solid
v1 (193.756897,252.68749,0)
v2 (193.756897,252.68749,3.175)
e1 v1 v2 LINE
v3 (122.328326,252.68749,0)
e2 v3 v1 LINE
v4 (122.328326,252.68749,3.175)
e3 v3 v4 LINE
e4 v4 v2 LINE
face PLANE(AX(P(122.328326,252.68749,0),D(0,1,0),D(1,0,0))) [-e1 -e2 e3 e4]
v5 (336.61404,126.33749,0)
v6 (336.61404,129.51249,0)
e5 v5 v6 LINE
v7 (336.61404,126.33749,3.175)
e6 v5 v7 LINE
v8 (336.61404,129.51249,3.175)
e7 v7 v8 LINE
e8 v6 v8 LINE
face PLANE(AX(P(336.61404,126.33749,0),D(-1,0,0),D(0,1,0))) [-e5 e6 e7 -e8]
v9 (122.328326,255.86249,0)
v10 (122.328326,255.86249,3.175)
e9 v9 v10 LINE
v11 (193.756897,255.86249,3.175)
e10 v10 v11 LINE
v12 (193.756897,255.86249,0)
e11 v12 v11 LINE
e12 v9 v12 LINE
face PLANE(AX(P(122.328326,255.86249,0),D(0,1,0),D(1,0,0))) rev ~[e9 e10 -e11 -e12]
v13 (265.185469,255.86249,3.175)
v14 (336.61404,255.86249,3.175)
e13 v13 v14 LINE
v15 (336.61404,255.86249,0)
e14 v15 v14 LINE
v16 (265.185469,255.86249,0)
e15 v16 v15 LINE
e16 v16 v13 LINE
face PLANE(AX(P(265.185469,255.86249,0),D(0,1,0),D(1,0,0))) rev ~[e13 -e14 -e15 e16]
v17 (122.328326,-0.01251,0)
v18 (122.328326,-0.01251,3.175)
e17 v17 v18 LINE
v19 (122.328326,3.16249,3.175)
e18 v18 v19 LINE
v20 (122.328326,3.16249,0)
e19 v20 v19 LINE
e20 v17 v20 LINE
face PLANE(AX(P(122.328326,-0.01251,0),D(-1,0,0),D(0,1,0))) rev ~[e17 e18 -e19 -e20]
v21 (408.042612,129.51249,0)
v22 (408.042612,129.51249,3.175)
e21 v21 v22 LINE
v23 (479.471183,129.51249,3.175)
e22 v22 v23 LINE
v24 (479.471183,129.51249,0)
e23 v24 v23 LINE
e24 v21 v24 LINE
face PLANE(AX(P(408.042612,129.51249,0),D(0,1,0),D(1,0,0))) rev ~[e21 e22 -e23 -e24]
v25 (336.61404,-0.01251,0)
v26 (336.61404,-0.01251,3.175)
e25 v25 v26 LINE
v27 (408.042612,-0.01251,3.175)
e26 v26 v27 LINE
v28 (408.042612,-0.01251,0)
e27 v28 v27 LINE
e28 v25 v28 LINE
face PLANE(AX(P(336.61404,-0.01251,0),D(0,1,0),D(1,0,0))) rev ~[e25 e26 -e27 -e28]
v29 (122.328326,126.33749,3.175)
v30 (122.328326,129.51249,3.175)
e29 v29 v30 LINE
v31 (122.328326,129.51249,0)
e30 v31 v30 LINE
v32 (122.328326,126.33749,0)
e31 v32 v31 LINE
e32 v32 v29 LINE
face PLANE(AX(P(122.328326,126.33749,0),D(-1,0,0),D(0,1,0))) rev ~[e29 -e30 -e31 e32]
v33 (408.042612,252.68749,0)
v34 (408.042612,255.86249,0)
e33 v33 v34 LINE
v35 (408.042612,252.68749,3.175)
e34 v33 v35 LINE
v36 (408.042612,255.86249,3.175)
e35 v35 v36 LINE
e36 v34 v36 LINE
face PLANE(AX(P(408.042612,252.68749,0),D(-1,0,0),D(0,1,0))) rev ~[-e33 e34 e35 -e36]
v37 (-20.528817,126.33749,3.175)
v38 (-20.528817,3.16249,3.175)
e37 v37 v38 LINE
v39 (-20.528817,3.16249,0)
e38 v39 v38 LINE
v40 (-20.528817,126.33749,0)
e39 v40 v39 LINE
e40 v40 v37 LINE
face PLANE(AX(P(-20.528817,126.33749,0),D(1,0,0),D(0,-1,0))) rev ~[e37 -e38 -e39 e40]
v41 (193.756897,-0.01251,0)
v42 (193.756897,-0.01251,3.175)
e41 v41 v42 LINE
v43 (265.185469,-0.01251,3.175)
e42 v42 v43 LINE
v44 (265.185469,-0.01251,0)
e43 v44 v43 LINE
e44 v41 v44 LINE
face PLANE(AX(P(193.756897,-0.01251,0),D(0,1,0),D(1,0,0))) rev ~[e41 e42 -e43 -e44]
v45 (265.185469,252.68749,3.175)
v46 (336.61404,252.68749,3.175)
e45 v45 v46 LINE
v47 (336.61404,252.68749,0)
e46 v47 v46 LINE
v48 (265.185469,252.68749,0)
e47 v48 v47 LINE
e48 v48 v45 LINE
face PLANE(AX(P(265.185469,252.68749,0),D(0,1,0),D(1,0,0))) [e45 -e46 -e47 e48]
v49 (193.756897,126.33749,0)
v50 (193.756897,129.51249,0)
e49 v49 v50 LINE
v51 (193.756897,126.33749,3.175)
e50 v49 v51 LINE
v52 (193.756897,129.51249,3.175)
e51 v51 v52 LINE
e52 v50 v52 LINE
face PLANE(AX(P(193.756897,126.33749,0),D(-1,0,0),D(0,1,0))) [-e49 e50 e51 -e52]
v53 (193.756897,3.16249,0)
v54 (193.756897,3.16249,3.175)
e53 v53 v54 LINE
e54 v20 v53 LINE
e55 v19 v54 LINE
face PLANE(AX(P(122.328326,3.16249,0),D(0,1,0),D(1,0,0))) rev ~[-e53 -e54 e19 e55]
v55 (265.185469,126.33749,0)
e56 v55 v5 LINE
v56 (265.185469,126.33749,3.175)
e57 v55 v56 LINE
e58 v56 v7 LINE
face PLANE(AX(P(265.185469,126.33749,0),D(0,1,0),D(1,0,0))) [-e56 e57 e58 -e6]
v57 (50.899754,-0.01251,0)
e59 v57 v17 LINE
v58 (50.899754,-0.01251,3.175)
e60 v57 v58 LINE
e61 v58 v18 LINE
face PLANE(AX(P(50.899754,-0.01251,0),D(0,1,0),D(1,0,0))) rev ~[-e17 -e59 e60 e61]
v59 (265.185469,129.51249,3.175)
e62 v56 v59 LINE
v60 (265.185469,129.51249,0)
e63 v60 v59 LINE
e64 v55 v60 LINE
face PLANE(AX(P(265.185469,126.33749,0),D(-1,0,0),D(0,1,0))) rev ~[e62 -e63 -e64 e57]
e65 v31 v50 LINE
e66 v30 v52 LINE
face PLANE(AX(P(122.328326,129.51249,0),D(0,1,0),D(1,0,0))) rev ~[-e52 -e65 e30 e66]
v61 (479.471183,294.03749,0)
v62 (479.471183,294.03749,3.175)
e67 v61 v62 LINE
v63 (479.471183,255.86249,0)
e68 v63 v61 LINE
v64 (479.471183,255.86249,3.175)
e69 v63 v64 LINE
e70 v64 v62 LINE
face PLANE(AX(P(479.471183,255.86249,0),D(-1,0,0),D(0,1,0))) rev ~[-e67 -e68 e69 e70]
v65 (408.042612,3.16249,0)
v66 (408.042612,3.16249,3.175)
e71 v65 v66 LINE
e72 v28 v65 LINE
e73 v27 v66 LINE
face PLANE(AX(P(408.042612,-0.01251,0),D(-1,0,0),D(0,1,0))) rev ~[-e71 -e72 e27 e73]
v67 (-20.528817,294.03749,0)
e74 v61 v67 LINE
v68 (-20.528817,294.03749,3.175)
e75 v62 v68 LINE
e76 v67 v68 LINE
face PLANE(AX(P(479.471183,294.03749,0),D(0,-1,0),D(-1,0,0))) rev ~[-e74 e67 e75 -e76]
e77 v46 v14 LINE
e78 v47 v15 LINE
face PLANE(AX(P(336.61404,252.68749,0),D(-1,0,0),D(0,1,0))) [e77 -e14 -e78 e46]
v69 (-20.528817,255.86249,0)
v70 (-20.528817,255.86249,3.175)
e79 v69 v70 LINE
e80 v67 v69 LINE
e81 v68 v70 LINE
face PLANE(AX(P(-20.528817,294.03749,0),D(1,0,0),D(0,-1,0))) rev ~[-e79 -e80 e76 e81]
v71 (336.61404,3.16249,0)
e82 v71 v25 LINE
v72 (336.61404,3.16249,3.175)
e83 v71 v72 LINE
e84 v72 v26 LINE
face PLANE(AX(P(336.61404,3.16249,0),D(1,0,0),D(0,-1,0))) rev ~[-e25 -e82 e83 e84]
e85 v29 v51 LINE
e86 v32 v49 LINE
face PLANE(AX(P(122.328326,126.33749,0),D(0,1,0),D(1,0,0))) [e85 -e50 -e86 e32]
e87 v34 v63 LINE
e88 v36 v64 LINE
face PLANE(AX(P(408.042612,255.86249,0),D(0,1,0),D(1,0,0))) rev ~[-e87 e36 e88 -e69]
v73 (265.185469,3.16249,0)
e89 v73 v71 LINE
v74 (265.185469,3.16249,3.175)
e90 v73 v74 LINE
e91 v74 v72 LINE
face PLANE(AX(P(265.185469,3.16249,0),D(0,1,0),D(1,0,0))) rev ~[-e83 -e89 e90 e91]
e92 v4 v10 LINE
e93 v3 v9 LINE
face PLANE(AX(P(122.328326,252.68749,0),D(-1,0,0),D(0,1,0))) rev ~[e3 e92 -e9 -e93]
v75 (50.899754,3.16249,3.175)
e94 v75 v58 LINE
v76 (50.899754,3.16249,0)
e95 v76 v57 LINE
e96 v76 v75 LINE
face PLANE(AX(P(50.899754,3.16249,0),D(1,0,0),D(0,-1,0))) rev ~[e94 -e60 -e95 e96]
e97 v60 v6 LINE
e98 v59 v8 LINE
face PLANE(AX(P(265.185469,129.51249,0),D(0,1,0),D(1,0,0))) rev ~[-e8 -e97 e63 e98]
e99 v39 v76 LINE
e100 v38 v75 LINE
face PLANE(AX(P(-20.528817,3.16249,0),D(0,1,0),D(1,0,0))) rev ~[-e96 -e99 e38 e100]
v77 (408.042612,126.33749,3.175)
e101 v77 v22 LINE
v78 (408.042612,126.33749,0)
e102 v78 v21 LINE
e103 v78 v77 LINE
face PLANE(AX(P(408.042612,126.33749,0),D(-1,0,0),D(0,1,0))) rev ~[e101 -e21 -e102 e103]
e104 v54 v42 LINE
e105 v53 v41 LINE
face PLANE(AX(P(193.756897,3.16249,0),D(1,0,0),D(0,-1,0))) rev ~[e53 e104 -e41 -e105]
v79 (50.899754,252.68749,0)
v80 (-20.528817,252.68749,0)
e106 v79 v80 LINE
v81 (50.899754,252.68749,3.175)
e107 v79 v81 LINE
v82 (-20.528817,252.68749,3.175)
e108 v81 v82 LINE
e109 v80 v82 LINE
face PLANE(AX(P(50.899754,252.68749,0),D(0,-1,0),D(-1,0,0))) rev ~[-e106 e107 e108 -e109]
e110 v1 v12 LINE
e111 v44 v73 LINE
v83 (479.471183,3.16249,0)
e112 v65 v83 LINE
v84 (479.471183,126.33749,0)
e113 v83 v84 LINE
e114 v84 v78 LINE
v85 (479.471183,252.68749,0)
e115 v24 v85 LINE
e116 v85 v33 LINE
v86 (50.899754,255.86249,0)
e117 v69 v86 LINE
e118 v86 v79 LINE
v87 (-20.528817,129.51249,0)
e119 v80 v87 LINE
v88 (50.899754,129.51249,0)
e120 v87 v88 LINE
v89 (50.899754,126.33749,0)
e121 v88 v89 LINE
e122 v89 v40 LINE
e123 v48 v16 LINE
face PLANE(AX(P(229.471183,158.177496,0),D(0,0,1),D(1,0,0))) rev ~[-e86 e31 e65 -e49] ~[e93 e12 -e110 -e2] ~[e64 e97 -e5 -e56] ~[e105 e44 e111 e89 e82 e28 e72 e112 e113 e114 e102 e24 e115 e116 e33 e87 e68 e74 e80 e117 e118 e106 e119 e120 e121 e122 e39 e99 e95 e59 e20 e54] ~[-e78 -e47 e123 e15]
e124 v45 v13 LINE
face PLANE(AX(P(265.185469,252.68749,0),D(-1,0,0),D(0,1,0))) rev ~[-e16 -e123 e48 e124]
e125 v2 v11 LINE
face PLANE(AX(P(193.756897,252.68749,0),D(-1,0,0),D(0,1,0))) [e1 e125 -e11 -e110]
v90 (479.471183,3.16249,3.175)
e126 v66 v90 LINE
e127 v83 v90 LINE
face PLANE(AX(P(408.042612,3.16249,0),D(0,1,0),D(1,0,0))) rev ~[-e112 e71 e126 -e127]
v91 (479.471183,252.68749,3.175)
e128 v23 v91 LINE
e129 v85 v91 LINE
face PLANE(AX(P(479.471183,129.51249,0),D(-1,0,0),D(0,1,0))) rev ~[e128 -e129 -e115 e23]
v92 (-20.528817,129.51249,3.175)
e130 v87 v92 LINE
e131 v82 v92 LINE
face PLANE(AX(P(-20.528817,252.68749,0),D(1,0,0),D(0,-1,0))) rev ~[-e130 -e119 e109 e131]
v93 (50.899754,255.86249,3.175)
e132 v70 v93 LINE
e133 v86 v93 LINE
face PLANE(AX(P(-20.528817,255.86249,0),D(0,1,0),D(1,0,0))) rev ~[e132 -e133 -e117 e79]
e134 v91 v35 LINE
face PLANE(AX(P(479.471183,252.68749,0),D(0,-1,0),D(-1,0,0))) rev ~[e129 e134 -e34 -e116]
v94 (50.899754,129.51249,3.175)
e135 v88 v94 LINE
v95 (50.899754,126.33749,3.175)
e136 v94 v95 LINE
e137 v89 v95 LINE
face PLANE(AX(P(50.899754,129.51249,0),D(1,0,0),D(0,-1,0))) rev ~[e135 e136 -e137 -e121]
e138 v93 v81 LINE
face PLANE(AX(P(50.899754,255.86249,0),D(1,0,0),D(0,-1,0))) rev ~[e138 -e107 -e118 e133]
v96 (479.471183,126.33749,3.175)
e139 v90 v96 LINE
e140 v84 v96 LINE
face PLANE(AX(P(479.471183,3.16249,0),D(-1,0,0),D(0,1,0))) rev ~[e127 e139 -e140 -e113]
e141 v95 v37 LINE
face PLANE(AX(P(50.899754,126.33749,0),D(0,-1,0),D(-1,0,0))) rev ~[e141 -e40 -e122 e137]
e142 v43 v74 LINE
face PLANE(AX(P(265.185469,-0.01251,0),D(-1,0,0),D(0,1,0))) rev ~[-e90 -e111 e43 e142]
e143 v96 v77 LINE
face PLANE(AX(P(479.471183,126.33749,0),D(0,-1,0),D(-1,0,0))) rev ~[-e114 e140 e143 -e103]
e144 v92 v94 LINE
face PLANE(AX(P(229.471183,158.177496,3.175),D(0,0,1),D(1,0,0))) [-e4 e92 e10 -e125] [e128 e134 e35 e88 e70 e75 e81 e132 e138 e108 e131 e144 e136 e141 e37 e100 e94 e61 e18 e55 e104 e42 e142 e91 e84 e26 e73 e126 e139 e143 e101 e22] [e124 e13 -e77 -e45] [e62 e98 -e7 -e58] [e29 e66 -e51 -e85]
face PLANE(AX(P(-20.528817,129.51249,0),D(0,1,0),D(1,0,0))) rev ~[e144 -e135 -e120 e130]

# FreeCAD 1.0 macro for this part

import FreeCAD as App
import Part
import Sketcher

V = App.Vector
Q = App.Units.Quantity


def add_polygon(sketch, points):
    """Adds a closed chain of lines whose ends are joined by coincident constraints."""
    first, n = sketch.GeometryCount, len(points)
    for a, b in zip(points, points[1:] + points[:1]):
        sketch.addGeometry(Part.LineSegment(App.Vector(*a, 0), App.Vector(*b, 0)), False)
    for i in range(n):
        sketch.addConstraint(Sketcher.Constraint("Coincident", first + i, 2, first + (i + 1) % n, 1))

doc = App.newDocument("Part")
body = doc.addObject("PartDesign::Body", "Body")

sketch1 = body.newObject("Sketcher::SketchObject", "Sketch")
sketch1.AttachmentSupport = (doc.getObject("XY_Plane"), [""])
sketch1.MapMode = "FlatFace"
add_polygon(sketch1, [(50.9, 0), (122.3, 0), (122.3, 3.2), (193.8, 3.2), (193.8, 0), (265.2, 0), (265.2, 3.2), (336.6, 3.2), (336.6, 0), (408, 0), (408, 3.2), (479.5, 3.2), (479.5, 126.3), (408, 126.3), (408, 129.5), (479.5, 129.5), (479.5, 252.7), (408, 252.7), (408, 255.9), (479.5, 255.9), (479.5, 294), (-20.5, 294), (-20.5, 255.9), (50.9, 255.9), (50.9, 252.7), (-20.5, 252.7), (-20.5, 129.5), (50.9, 129.5), (50.9, 126.3), (-20.5, 126.3), (-20.5, 3.2), (50.9, 3.2)])
add_polygon(sketch1, [(193.8, 126.3), (122.3, 126.3), (122.3, 129.5), (193.8, 129.5)])
add_polygon(sketch1, [(336.6, 126.3), (265.2, 126.3), (265.2, 129.5), (336.6, 129.5)])
add_polygon(sketch1, [(193.8, 252.7), (122.3, 252.7), (122.3, 255.9), (193.8, 255.9)])
add_polygon(sketch1, [(336.6, 252.7), (265.2, 252.7), (265.2, 255.9), (336.6, 255.9)])
sketch1.addConstraint([
    Sketcher.Constraint("Horizontal", 0),
    Sketcher.Constraint("Vertical", 1),
    Sketcher.Constraint("Horizontal", 2),
    Sketcher.Constraint("Vertical", 3),
    Sketcher.Constraint("Horizontal", 4),
    Sketcher.Constraint("Vertical", 5),
    Sketcher.Constraint("Horizontal", 6),
    Sketcher.Constraint("Vertical", 7),
    Sketcher.Constraint("Horizontal", 8),
    Sketcher.Constraint("Vertical", 9),
    Sketcher.Constraint("Horizontal", 10),
    Sketcher.Constraint("Vertical", 11),
    Sketcher.Constraint("Horizontal", 12),
    Sketcher.Constraint("Vertical", 13),
    Sketcher.Constraint("Horizontal", 14),
    Sketcher.Constraint("Vertical", 15),
    Sketcher.Constraint("Horizontal", 16),
    Sketcher.Constraint("Vertical", 17),
    Sketcher.Constraint("Horizontal", 18),
    Sketcher.Constraint("Vertical", 19),
    Sketcher.Constraint("Horizontal", 20),
    Sketcher.Constraint("Vertical", 21),
    Sketcher.Constraint("Horizontal", 22),
    Sketcher.Constraint("Vertical", 23),
    Sketcher.Constraint("Horizontal", 24),
    Sketcher.Constraint("Vertical", 25),
    Sketcher.Constraint("Horizontal", 26),
    Sketcher.Constraint("Vertical", 27),
    Sketcher.Constraint("Horizontal", 28),
    Sketcher.Constraint("Vertical", 29),
    Sketcher.Constraint("Horizontal", 30),
    Sketcher.Constraint("Vertical", 31),
    Sketcher.Constraint("Horizontal", 32),
    Sketcher.Constraint("Vertical", 33),
    Sketcher.Constraint("Horizontal", 34),
    Sketcher.Constraint("Vertical", 35),
    Sketcher.Constraint("Horizontal", 36),
    Sketcher.Constraint("Vertical", 37),
    Sketcher.Constraint("Horizontal", 38),
    Sketcher.Constraint("Vertical", 39),
    Sketcher.Constraint("Horizontal", 40),
    Sketcher.Constraint("Vertical", 41),
    Sketcher.Constraint("Horizontal", 42),
    Sketcher.Constraint("Vertical", 43),
    Sketcher.Constraint("Horizontal", 44),
    Sketcher.Constraint("Vertical", 45),
    Sketcher.Constraint("Horizontal", 46),
    Sketcher.Constraint("Vertical", 47),
    Sketcher.Constraint("Horizontal", 0, 2, 3, 2),
    Sketcher.Constraint("Horizontal", 2, 2, 5, 2),
    Sketcher.Constraint("Horizontal", 4, 2, 7, 2),
    Sketcher.Constraint("Horizontal", 6, 2, 9, 2),
    Sketcher.Constraint("Horizontal", 18, 2, 21, 2),
    Sketcher.Constraint("Horizontal", 16, 2, 23, 2),
    Sketcher.Constraint("Horizontal", 14, 2, 25, 2),
    Sketcher.Constraint("Horizontal", 12, 2, 27, 2),
    Sketcher.Constraint("Horizontal", 10, 2, 29, 2),
    Sketcher.Constraint("Horizontal", 28, 2, 32, 2),
    Sketcher.Constraint("Horizontal", 26, 2, 33, 2),
    Sketcher.Constraint("Horizontal", 35, 2, 36, 2),
    Sketcher.Constraint("Horizontal", 34, 2, 37, 2),
    Sketcher.Constraint("Horizontal", 24, 2, 40, 2),
    Sketcher.Constraint("Horizontal", 22, 2, 41, 2),
    Sketcher.Constraint("Horizontal", 43, 2, 44, 2),
    Sketcher.Constraint("Horizontal", 42, 2, 45, 2),
    Sketcher.Constraint("Vertical", 9, 2, 12, 2),
    Sketcher.Constraint("Vertical", 11, 2, 14, 2),
    Sketcher.Constraint("Vertical", 13, 2, 16, 2),
    Sketcher.Constraint("Vertical", 15, 2, 18, 2),
    Sketcher.Constraint("Vertical", 21, 2, 24, 2),
    Sketcher.Constraint("Vertical", 23, 2, 26, 2),
    Sketcher.Constraint("Vertical", 25, 2, 28, 2),
    Sketcher.Constraint("Vertical", 27, 2, 30, 2),
    Sketcher.Constraint("Vertical", 1, 2, 32, 2),
    Sketcher.Constraint("Vertical", 3, 2, 34, 2),
    Sketcher.Constraint("Vertical", 5, 2, 36, 2),
    Sketcher.Constraint("Vertical", 7, 2, 38, 2),
    Sketcher.Constraint("Vertical", 33, 2, 40, 2),
    Sketcher.Constraint("Vertical", 35, 2, 42, 2),
    Sketcher.Constraint("Vertical", 37, 2, 44, 2),
    Sketcher.Constraint("Vertical", 39, 2, 46, 2),
    Sketcher.Constraint("Equal", 0, 2),
    Sketcher.Constraint("Equal", 2, 4),
    Sketcher.Constraint("Equal", 4, 6),
    Sketcher.Constraint("Equal", 6, 8),
    Sketcher.Constraint("Equal", 8, 10),
    Sketcher.Constraint("Equal", 18, 22),
    Sketcher.Constraint("Equal", 9, 13),
    Sketcher.Constraint("Equal", 11, 15),
    Sketcher.Constraint("Equal", 13, 17),
    Sketcher.Constraint("DistanceX", 20, 2, 20, 1, Q("500 mm")),
    Sketcher.Constraint("DistanceY", 1, 2, 21, 2, Q("252.7 mm")),
    Sketcher.Constraint("DistanceY", 1, 1, 1, 2, Q("3.175 mm")),
    Sketcher.Constraint("DistanceY", 19, 1, 19, 2, Q("38.175 mm")),
    Sketcher.Constraint("DistanceY", 0, 2, -1, 1, Q("0.01251 mm")),
    Sketcher.Constraint("DistanceX", -1, 1, 4, 2, Q("265.185469 mm")),
])
pad1 = body.newObject("PartDesign::Pad", "Pad")
pad1.Profile = sketch1
pad1.Length = 3.175

doc.recompute()
